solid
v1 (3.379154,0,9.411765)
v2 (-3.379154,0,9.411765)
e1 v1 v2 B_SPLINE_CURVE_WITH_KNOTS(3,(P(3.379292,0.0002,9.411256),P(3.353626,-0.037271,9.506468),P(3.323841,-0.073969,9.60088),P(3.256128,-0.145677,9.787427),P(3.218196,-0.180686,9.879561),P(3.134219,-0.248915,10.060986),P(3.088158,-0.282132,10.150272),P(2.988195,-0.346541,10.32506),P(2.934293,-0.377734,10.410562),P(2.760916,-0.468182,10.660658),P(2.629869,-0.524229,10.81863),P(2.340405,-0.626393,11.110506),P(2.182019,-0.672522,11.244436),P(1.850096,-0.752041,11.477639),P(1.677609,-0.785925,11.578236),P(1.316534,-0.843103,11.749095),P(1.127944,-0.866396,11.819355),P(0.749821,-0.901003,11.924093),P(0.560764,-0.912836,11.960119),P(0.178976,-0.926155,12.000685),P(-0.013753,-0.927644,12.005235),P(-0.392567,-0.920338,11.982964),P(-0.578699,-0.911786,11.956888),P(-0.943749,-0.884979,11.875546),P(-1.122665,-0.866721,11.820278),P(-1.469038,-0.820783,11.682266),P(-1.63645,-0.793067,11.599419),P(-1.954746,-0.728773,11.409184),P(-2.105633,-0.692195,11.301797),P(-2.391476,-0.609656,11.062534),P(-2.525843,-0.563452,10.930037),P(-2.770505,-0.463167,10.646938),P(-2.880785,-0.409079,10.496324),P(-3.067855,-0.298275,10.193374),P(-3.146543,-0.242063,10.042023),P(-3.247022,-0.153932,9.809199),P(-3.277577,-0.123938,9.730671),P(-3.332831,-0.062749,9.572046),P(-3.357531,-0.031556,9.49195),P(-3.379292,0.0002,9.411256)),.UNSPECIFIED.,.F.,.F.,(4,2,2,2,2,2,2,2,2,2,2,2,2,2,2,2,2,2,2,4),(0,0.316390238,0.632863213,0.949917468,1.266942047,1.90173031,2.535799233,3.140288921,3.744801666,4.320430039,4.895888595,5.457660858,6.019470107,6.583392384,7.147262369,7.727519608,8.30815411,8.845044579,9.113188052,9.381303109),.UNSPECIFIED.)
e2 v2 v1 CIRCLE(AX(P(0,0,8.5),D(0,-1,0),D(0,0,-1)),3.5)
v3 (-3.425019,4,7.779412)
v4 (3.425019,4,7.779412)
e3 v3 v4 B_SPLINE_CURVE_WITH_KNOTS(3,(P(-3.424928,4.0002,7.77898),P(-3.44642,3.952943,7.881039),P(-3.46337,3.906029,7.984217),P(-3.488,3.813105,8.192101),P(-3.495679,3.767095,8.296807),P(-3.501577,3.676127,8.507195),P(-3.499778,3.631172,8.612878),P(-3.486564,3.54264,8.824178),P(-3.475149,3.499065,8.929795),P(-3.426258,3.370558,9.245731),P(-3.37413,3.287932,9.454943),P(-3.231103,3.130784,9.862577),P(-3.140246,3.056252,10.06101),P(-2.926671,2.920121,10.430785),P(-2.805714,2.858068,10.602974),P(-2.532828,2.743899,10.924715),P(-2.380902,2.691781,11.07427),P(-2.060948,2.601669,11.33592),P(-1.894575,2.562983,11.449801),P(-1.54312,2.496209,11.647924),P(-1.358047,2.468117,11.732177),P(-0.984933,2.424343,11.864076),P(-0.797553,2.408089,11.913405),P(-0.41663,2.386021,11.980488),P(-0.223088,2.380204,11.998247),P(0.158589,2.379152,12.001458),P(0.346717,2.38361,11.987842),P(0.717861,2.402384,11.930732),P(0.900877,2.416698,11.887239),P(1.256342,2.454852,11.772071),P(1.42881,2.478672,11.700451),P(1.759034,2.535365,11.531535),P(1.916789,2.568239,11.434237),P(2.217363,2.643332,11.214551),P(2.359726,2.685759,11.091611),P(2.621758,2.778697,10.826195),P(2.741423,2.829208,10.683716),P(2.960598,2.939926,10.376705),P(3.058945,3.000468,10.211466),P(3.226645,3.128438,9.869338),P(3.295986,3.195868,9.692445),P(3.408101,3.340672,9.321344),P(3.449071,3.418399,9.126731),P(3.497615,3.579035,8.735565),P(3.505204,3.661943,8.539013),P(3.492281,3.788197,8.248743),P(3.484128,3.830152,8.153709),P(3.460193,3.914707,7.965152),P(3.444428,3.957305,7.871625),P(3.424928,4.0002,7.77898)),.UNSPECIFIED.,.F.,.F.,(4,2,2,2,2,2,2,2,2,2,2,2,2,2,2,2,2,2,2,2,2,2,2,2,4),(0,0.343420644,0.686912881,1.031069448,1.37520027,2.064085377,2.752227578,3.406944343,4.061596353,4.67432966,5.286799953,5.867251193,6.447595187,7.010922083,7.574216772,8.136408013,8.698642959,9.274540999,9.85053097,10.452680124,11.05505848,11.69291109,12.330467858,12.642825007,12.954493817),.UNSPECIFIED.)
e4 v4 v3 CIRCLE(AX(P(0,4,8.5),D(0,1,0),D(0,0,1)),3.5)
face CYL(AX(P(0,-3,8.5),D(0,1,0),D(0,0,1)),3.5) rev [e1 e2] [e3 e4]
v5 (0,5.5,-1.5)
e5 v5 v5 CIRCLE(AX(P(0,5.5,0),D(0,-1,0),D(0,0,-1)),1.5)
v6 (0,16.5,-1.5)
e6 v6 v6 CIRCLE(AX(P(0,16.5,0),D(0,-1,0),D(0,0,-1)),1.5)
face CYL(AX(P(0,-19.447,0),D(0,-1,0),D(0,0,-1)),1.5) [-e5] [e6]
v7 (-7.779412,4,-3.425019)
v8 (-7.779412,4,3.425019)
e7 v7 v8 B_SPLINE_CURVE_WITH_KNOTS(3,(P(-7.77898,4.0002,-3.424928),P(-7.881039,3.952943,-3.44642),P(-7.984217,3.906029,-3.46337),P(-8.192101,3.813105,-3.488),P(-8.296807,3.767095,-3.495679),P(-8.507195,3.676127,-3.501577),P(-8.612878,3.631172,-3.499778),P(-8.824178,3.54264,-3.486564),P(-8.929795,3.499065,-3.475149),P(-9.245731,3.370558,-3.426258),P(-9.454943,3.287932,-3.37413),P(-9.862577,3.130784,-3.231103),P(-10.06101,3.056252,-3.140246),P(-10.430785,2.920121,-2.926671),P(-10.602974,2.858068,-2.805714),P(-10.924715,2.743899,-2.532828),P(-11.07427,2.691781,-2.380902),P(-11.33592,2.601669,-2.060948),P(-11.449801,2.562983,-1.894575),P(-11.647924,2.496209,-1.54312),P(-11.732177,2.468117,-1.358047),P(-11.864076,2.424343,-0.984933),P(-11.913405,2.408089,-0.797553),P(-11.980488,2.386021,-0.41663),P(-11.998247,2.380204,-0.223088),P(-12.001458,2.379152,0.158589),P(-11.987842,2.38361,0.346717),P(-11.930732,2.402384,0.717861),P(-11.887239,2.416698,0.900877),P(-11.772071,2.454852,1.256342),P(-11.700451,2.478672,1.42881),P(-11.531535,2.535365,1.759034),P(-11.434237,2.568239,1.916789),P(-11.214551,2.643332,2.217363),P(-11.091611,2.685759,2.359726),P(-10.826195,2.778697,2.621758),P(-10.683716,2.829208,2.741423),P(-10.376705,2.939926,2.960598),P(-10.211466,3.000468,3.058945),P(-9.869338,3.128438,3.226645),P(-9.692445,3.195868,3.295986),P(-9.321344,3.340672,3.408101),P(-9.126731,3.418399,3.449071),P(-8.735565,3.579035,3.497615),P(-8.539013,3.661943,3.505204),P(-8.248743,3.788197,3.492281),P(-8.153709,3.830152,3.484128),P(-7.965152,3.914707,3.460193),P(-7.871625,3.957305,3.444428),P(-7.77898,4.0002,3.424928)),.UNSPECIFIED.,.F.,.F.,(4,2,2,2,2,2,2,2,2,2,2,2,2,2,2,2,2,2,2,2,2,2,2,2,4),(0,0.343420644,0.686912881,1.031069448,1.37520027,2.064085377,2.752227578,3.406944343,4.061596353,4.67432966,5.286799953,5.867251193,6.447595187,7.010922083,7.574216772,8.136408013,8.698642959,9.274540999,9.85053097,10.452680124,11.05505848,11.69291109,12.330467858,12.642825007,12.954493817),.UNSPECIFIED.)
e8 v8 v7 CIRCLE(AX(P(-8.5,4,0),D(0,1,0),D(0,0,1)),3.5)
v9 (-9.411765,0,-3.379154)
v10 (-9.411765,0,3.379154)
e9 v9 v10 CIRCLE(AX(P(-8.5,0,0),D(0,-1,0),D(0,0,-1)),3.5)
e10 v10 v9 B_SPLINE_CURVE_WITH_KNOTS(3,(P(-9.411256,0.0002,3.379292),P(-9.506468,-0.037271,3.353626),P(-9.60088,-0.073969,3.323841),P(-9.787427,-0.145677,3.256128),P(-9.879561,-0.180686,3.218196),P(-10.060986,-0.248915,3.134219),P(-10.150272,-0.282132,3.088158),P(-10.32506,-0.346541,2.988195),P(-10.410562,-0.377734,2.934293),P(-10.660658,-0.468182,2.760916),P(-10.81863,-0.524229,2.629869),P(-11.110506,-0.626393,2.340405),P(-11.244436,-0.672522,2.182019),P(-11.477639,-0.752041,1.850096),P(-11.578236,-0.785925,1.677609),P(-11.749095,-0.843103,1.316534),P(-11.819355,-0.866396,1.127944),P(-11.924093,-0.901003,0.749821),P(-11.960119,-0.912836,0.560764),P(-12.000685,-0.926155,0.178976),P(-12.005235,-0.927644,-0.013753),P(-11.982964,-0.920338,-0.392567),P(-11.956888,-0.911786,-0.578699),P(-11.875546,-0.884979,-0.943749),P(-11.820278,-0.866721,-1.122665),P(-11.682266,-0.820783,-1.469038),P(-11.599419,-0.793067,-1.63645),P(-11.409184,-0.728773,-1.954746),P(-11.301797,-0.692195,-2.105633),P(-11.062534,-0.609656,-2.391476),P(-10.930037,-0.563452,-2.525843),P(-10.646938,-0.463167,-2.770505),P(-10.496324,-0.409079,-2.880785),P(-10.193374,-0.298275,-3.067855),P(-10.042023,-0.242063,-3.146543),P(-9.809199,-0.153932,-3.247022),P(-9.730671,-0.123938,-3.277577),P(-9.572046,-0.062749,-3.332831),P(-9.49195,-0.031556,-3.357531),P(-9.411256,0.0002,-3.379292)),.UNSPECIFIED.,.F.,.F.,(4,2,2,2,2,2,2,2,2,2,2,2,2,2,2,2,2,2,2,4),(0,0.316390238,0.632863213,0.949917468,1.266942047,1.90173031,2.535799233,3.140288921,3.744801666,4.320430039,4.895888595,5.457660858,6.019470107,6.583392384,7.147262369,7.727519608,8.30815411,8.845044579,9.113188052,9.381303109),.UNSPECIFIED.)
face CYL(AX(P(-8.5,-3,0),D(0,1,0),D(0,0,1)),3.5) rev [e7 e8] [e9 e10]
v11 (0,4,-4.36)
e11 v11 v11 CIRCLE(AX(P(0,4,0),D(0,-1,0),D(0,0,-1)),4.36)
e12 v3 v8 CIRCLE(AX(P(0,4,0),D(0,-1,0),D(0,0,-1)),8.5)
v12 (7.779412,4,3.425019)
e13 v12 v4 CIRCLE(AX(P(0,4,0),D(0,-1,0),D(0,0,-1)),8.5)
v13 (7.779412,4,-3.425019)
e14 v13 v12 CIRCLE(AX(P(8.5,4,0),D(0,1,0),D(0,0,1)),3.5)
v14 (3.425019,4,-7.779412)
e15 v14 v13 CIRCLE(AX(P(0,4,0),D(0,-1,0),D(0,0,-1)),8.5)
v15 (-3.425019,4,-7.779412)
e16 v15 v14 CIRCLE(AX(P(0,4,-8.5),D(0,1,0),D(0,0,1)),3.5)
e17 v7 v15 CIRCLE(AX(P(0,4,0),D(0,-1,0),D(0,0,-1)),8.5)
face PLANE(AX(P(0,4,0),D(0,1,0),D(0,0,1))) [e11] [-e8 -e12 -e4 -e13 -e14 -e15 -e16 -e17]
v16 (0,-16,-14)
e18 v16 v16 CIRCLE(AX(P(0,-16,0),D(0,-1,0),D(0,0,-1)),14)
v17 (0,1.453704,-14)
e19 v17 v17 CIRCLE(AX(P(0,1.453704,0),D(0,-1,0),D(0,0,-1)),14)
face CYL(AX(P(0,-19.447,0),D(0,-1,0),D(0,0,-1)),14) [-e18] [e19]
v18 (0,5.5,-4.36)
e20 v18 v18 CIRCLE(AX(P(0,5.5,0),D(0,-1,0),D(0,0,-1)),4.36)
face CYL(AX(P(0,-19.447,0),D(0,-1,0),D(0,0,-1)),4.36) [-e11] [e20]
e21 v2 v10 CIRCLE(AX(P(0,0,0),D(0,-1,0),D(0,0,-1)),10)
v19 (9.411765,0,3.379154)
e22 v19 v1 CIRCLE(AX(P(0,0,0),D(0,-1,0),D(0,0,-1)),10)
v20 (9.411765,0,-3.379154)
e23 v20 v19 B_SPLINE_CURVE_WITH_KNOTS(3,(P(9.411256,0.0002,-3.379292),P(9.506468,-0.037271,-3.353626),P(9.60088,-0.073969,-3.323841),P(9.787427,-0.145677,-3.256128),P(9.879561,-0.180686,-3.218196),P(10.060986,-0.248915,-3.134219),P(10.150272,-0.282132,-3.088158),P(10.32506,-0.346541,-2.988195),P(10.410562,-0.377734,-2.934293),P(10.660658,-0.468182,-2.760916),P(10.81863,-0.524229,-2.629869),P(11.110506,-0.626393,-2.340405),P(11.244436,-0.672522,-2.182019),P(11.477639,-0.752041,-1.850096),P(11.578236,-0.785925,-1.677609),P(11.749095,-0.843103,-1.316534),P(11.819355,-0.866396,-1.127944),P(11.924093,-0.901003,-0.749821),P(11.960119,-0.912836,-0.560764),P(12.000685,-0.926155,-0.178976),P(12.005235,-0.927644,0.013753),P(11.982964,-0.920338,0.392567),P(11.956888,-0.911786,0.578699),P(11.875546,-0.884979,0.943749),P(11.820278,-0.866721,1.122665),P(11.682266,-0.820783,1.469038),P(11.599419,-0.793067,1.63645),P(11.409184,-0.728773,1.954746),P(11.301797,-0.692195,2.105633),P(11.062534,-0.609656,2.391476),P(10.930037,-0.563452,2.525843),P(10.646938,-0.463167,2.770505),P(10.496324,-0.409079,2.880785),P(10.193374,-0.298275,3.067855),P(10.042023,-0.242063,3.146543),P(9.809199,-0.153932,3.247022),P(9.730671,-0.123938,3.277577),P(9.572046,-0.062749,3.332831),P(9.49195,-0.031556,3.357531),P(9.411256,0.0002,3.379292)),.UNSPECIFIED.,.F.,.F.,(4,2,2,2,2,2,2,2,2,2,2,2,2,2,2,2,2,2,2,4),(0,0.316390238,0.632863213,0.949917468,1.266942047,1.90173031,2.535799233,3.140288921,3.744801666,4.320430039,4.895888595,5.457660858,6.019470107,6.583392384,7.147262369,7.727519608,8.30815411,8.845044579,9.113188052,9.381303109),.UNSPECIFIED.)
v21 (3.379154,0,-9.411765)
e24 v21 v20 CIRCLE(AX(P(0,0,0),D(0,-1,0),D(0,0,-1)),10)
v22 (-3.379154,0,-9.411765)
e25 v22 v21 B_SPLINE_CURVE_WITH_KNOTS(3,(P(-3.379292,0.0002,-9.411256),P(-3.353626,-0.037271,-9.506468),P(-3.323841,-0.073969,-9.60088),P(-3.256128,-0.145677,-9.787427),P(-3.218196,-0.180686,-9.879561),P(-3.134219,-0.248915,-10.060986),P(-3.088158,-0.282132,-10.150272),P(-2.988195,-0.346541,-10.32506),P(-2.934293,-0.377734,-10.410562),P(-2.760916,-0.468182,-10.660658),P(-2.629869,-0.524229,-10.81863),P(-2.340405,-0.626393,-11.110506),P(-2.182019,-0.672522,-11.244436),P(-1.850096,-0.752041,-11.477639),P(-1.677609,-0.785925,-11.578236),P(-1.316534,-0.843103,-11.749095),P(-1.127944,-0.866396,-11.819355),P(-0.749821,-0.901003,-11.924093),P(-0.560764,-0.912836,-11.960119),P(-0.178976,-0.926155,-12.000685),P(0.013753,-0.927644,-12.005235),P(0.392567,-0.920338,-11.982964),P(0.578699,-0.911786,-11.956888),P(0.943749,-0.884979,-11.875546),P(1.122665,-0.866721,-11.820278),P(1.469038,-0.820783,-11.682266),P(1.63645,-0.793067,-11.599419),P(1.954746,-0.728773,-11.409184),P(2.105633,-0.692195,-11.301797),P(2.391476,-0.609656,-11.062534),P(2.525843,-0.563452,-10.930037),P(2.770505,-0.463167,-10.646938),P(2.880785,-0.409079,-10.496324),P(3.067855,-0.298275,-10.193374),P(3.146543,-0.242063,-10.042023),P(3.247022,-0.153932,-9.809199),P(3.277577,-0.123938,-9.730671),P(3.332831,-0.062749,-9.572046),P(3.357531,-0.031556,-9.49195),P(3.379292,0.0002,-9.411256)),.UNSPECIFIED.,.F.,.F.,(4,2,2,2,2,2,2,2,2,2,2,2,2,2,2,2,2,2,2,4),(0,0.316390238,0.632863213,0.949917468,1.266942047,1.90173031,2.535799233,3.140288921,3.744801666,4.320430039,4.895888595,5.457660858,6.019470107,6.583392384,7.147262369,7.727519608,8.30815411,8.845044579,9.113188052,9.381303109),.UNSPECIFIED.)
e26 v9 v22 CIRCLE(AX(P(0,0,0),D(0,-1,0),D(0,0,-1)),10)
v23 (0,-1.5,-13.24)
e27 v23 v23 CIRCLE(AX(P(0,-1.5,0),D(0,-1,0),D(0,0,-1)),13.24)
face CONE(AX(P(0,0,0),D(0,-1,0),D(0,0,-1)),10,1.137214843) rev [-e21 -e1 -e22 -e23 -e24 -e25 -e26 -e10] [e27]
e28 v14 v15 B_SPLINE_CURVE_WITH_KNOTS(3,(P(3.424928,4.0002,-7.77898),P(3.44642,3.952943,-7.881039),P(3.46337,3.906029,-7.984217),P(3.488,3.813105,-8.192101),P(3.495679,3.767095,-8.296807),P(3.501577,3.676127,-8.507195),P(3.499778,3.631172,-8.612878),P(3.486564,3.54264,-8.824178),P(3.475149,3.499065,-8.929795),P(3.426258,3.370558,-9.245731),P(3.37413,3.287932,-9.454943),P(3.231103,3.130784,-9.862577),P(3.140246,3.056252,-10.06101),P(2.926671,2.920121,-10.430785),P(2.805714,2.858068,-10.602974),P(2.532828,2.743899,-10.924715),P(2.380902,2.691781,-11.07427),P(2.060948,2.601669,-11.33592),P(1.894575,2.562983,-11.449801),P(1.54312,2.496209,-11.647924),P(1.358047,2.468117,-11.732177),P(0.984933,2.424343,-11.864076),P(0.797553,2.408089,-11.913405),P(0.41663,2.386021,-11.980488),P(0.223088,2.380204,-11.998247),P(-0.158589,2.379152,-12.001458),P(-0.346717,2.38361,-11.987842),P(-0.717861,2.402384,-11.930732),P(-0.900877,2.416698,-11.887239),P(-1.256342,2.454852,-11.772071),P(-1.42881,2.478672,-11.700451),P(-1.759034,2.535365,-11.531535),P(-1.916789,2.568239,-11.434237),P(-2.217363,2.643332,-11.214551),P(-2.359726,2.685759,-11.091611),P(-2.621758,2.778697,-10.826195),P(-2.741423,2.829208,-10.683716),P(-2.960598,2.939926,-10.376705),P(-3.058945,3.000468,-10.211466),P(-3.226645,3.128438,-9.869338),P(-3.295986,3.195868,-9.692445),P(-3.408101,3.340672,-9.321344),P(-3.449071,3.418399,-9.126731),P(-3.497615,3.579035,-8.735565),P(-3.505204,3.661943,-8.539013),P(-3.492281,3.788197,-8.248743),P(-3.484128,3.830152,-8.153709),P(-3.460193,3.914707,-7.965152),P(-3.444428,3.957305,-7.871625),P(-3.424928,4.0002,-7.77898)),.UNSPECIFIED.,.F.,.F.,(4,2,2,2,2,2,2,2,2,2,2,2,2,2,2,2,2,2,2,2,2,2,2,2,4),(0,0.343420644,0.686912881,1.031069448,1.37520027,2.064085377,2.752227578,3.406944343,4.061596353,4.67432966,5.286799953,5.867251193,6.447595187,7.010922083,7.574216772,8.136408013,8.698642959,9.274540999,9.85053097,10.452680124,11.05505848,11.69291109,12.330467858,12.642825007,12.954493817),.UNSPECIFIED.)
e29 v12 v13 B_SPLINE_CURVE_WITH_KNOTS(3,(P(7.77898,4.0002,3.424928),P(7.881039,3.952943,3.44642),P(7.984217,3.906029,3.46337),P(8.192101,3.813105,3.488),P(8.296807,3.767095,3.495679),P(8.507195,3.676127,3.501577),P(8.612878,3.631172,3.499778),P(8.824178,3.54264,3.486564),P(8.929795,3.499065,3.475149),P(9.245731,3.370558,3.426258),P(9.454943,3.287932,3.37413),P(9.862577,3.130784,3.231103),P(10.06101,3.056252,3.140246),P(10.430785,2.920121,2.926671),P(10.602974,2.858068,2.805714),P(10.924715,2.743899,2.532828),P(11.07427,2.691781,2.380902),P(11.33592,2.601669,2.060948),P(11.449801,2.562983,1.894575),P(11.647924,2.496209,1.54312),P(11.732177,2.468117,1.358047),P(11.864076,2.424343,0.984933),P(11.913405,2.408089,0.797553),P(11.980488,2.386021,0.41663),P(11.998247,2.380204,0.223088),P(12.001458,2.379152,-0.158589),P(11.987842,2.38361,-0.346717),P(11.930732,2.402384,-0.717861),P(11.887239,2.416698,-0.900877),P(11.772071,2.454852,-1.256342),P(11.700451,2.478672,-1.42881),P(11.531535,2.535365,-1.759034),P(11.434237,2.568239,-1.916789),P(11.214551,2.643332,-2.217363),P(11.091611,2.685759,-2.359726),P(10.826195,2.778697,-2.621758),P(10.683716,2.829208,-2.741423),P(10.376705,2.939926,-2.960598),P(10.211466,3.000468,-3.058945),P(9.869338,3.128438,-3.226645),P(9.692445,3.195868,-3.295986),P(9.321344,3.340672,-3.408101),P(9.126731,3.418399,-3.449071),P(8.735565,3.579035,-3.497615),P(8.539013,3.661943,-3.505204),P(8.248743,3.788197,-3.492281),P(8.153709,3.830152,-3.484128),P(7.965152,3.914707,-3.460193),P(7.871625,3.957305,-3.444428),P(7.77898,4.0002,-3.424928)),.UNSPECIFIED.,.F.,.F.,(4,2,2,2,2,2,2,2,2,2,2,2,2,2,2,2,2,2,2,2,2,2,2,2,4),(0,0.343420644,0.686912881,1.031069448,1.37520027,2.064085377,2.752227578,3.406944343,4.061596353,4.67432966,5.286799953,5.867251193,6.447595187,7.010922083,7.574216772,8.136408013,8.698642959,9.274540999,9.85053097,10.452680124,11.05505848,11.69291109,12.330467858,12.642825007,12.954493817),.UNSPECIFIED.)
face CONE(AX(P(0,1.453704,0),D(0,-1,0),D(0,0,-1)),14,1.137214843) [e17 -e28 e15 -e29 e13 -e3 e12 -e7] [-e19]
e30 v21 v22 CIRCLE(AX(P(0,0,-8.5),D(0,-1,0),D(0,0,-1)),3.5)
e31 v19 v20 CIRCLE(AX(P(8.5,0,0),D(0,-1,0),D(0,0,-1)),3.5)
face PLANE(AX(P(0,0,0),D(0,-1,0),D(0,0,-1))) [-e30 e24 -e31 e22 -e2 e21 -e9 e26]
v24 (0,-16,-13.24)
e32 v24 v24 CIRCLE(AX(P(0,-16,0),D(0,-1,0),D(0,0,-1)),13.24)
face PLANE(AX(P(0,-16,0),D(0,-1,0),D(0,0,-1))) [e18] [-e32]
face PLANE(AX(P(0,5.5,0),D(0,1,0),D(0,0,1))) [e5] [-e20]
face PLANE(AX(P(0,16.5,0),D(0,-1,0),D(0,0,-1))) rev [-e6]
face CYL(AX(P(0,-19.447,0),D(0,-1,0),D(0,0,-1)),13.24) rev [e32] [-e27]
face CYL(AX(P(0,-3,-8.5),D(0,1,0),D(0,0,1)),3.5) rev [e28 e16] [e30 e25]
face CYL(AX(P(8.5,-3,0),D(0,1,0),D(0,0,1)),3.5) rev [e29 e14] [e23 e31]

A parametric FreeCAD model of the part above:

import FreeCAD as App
import Part
import Sketcher
Q = App.Units.Quantity

doc = App.newDocument("Part")
body = doc.addObject("PartDesign::Body", "Body")

# Sketch on XY plane
sketch1 = doc.addObject("Sketcher::SketchObject", "Sketch")
body.addObject(sketch1)
sketch1.AttachmentSupport = (doc.XY_Plane, [""])
sketch1.MapMode = "FlatFace"
sketch1.addGeometry([
    Part.LineSegment(App.Vector(-14, -16, 0), App.Vector(-13.2, -16, 0)),  # 0
    Part.LineSegment(App.Vector(-13.2, -16, 0), App.Vector(-13.2, -1.5, 0)),  # 1
    Part.LineSegment(App.Vector(-13.2, -1.5, 0), App.Vector(-10, 0, 0)),  # 2
    Part.LineSegment(App.Vector(-10, 0, 0), App.Vector(0, 0, 0)),  # 3
    Part.LineSegment(App.Vector(0, 0, 0), App.Vector(0, 16.5, 0)),  # 4
    Part.LineSegment(App.Vector(0, 16.5, 0), App.Vector(-1.5, 16.5, 0)),  # 5
    Part.LineSegment(App.Vector(-1.5, 16.5, 0), App.Vector(-1.5, 5.5, 0)),  # 6
    Part.LineSegment(App.Vector(-1.5, 5.5, 0), App.Vector(-4.4, 5.5, 0)),  # 7
    Part.LineSegment(App.Vector(-4.4, 5.5, 0), App.Vector(-4.4, 4, 0)),  # 8
    Part.LineSegment(App.Vector(-4.4, 4, 0), App.Vector(-8.5, 4, 0)),  # 9
    Part.LineSegment(App.Vector(-8.5, 4, 0), App.Vector(-14, 1.5, 0)),  # 10
    Part.LineSegment(App.Vector(-14, 1.5, 0), App.Vector(-14, -16, 0)),  # 11
], False)
sketch1.addConstraint([
    Sketcher.Constraint("Coincident", 0, 2, 1, 1),
    Sketcher.Constraint("Coincident", 1, 2, 2, 1),
    Sketcher.Constraint("Coincident", 2, 2, 3, 1),
    Sketcher.Constraint("Coincident", 3, 2, 4, 1),
    Sketcher.Constraint("Coincident", 4, 2, 5, 1),
    Sketcher.Constraint("Coincident", 5, 2, 6, 1),
    Sketcher.Constraint("Coincident", 6, 2, 7, 1),
    Sketcher.Constraint("Coincident", 7, 2, 8, 1),
    Sketcher.Constraint("Coincident", 8, 2, 9, 1),
    Sketcher.Constraint("Coincident", 9, 2, 10, 1),
    Sketcher.Constraint("Coincident", 10, 2, 11, 1),
    Sketcher.Constraint("Coincident", 11, 2, 0, 1),
    Sketcher.Constraint("Horizontal", 0),
    Sketcher.Constraint("Vertical", 1),
    Sketcher.Constraint("Horizontal", 3),
    Sketcher.Constraint("Vertical", 4),
    Sketcher.Constraint("Horizontal", 5),
    Sketcher.Constraint("Vertical", 6),
    Sketcher.Constraint("Horizontal", 7),
    Sketcher.Constraint("Vertical", 8),
    Sketcher.Constraint("Horizontal", 9),
    Sketcher.Constraint("Vertical", 11),
    Sketcher.Constraint("Coincident", 3, 2, -1, 1),
    Sketcher.Constraint("Parallel", 2, 10),
    Sketcher.Constraint("Equal", 5, 8),
    Sketcher.Constraint("DistanceX", 3, 1, 3, 2, Q("10 mm")),
    Sketcher.Constraint("DistanceY", 6, 2, 6, 1, Q("11 mm")),
    Sketcher.Constraint("DistanceX", 5, 2, 5, 1, Q("1.5 mm")),
    Sketcher.Constraint("DistanceY", 1, 1, 1, 2, Q("14.5 mm")),
    Sketcher.Constraint("DistanceY", 4, 1, 4, 2, Q("16.5 mm")),
    Sketcher.Constraint("DistanceY", 0, 2, -1, 1, Q("16 mm")),
    Sketcher.Constraint("DistanceX", 10, 2, -1, 1, Q("14 mm")),
    Sketcher.Constraint("DistanceX", 9, 2, 6, 2, Q("7 mm")),
    Sketcher.Constraint("DistanceX", 0, 1, 0, 2, Q("0.76 mm")),
    Sketcher.Constraint("DistanceX", 7, 2, 7, 1, Q("2.86 mm")),
])
revolution = doc.addObject("PartDesign::Revolution", "Revolution")
body.addObject(revolution)
revolution.Profile = sketch1
revolution.ReferenceAxis = (sketch1, ["V_Axis"])
revolution.Angle = 360

# Sketch on XZ plane
sketch2 = doc.addObject("Sketcher::SketchObject", "Sketch001")
body.addObject(sketch2)
sketch2.AttachmentSupport = (doc.XZ_Plane, [""])
sketch2.MapMode = "FlatFace"
sketch2.AttachmentOffset = App.Placement(App.Vector(0, 0, -4), App.Rotation())
sketch2.addGeometry([
    Part.Circle(App.Vector(0, -8.5, 0), App.Vector(0, 0, 1), 3.5),
    Part.Circle(App.Vector(8.5, 0, 0), App.Vector(0, 0, 1), 3.5),
    Part.Circle(App.Vector(0, 8.5, 0), App.Vector(0, 0, 1), 3.5),
    Part.Circle(App.Vector(-8.5, 0, 0), App.Vector(0, 0, 1), 3.5),
], False)
sketch2.addConstraint([
    Sketcher.Constraint("Equal", 0, 1),
    Sketcher.Constraint("Equal", 1, 2),
    Sketcher.Constraint("Equal", 2, 3),
    Sketcher.Constraint("Symmetric", 0, 3, 2, 3, -1, 1),
    Sketcher.Constraint("Symmetric", 1, 3, 3, 3, -1, 1),
    Sketcher.Constraint("PointOnObject", 0, 3, -2),
    Sketcher.Constraint("PointOnObject", 1, 3, -1),
    Sketcher.Constraint("Diameter", 0, Q("7 mm")),
    Sketcher.Constraint("DistanceY", 0, 3, 2, 3, Q("17 mm")),
    Sketcher.Constraint("DistanceX", 3, 3, 1, 3, Q("17 mm")),
])
pocket1 = doc.addObject("PartDesign::Pocket", "Pocket")
body.addObject(pocket1)
pocket1.Profile = sketch2
pocket1.Length = 7
pocket1.Reversed = True

doc.recompute()
